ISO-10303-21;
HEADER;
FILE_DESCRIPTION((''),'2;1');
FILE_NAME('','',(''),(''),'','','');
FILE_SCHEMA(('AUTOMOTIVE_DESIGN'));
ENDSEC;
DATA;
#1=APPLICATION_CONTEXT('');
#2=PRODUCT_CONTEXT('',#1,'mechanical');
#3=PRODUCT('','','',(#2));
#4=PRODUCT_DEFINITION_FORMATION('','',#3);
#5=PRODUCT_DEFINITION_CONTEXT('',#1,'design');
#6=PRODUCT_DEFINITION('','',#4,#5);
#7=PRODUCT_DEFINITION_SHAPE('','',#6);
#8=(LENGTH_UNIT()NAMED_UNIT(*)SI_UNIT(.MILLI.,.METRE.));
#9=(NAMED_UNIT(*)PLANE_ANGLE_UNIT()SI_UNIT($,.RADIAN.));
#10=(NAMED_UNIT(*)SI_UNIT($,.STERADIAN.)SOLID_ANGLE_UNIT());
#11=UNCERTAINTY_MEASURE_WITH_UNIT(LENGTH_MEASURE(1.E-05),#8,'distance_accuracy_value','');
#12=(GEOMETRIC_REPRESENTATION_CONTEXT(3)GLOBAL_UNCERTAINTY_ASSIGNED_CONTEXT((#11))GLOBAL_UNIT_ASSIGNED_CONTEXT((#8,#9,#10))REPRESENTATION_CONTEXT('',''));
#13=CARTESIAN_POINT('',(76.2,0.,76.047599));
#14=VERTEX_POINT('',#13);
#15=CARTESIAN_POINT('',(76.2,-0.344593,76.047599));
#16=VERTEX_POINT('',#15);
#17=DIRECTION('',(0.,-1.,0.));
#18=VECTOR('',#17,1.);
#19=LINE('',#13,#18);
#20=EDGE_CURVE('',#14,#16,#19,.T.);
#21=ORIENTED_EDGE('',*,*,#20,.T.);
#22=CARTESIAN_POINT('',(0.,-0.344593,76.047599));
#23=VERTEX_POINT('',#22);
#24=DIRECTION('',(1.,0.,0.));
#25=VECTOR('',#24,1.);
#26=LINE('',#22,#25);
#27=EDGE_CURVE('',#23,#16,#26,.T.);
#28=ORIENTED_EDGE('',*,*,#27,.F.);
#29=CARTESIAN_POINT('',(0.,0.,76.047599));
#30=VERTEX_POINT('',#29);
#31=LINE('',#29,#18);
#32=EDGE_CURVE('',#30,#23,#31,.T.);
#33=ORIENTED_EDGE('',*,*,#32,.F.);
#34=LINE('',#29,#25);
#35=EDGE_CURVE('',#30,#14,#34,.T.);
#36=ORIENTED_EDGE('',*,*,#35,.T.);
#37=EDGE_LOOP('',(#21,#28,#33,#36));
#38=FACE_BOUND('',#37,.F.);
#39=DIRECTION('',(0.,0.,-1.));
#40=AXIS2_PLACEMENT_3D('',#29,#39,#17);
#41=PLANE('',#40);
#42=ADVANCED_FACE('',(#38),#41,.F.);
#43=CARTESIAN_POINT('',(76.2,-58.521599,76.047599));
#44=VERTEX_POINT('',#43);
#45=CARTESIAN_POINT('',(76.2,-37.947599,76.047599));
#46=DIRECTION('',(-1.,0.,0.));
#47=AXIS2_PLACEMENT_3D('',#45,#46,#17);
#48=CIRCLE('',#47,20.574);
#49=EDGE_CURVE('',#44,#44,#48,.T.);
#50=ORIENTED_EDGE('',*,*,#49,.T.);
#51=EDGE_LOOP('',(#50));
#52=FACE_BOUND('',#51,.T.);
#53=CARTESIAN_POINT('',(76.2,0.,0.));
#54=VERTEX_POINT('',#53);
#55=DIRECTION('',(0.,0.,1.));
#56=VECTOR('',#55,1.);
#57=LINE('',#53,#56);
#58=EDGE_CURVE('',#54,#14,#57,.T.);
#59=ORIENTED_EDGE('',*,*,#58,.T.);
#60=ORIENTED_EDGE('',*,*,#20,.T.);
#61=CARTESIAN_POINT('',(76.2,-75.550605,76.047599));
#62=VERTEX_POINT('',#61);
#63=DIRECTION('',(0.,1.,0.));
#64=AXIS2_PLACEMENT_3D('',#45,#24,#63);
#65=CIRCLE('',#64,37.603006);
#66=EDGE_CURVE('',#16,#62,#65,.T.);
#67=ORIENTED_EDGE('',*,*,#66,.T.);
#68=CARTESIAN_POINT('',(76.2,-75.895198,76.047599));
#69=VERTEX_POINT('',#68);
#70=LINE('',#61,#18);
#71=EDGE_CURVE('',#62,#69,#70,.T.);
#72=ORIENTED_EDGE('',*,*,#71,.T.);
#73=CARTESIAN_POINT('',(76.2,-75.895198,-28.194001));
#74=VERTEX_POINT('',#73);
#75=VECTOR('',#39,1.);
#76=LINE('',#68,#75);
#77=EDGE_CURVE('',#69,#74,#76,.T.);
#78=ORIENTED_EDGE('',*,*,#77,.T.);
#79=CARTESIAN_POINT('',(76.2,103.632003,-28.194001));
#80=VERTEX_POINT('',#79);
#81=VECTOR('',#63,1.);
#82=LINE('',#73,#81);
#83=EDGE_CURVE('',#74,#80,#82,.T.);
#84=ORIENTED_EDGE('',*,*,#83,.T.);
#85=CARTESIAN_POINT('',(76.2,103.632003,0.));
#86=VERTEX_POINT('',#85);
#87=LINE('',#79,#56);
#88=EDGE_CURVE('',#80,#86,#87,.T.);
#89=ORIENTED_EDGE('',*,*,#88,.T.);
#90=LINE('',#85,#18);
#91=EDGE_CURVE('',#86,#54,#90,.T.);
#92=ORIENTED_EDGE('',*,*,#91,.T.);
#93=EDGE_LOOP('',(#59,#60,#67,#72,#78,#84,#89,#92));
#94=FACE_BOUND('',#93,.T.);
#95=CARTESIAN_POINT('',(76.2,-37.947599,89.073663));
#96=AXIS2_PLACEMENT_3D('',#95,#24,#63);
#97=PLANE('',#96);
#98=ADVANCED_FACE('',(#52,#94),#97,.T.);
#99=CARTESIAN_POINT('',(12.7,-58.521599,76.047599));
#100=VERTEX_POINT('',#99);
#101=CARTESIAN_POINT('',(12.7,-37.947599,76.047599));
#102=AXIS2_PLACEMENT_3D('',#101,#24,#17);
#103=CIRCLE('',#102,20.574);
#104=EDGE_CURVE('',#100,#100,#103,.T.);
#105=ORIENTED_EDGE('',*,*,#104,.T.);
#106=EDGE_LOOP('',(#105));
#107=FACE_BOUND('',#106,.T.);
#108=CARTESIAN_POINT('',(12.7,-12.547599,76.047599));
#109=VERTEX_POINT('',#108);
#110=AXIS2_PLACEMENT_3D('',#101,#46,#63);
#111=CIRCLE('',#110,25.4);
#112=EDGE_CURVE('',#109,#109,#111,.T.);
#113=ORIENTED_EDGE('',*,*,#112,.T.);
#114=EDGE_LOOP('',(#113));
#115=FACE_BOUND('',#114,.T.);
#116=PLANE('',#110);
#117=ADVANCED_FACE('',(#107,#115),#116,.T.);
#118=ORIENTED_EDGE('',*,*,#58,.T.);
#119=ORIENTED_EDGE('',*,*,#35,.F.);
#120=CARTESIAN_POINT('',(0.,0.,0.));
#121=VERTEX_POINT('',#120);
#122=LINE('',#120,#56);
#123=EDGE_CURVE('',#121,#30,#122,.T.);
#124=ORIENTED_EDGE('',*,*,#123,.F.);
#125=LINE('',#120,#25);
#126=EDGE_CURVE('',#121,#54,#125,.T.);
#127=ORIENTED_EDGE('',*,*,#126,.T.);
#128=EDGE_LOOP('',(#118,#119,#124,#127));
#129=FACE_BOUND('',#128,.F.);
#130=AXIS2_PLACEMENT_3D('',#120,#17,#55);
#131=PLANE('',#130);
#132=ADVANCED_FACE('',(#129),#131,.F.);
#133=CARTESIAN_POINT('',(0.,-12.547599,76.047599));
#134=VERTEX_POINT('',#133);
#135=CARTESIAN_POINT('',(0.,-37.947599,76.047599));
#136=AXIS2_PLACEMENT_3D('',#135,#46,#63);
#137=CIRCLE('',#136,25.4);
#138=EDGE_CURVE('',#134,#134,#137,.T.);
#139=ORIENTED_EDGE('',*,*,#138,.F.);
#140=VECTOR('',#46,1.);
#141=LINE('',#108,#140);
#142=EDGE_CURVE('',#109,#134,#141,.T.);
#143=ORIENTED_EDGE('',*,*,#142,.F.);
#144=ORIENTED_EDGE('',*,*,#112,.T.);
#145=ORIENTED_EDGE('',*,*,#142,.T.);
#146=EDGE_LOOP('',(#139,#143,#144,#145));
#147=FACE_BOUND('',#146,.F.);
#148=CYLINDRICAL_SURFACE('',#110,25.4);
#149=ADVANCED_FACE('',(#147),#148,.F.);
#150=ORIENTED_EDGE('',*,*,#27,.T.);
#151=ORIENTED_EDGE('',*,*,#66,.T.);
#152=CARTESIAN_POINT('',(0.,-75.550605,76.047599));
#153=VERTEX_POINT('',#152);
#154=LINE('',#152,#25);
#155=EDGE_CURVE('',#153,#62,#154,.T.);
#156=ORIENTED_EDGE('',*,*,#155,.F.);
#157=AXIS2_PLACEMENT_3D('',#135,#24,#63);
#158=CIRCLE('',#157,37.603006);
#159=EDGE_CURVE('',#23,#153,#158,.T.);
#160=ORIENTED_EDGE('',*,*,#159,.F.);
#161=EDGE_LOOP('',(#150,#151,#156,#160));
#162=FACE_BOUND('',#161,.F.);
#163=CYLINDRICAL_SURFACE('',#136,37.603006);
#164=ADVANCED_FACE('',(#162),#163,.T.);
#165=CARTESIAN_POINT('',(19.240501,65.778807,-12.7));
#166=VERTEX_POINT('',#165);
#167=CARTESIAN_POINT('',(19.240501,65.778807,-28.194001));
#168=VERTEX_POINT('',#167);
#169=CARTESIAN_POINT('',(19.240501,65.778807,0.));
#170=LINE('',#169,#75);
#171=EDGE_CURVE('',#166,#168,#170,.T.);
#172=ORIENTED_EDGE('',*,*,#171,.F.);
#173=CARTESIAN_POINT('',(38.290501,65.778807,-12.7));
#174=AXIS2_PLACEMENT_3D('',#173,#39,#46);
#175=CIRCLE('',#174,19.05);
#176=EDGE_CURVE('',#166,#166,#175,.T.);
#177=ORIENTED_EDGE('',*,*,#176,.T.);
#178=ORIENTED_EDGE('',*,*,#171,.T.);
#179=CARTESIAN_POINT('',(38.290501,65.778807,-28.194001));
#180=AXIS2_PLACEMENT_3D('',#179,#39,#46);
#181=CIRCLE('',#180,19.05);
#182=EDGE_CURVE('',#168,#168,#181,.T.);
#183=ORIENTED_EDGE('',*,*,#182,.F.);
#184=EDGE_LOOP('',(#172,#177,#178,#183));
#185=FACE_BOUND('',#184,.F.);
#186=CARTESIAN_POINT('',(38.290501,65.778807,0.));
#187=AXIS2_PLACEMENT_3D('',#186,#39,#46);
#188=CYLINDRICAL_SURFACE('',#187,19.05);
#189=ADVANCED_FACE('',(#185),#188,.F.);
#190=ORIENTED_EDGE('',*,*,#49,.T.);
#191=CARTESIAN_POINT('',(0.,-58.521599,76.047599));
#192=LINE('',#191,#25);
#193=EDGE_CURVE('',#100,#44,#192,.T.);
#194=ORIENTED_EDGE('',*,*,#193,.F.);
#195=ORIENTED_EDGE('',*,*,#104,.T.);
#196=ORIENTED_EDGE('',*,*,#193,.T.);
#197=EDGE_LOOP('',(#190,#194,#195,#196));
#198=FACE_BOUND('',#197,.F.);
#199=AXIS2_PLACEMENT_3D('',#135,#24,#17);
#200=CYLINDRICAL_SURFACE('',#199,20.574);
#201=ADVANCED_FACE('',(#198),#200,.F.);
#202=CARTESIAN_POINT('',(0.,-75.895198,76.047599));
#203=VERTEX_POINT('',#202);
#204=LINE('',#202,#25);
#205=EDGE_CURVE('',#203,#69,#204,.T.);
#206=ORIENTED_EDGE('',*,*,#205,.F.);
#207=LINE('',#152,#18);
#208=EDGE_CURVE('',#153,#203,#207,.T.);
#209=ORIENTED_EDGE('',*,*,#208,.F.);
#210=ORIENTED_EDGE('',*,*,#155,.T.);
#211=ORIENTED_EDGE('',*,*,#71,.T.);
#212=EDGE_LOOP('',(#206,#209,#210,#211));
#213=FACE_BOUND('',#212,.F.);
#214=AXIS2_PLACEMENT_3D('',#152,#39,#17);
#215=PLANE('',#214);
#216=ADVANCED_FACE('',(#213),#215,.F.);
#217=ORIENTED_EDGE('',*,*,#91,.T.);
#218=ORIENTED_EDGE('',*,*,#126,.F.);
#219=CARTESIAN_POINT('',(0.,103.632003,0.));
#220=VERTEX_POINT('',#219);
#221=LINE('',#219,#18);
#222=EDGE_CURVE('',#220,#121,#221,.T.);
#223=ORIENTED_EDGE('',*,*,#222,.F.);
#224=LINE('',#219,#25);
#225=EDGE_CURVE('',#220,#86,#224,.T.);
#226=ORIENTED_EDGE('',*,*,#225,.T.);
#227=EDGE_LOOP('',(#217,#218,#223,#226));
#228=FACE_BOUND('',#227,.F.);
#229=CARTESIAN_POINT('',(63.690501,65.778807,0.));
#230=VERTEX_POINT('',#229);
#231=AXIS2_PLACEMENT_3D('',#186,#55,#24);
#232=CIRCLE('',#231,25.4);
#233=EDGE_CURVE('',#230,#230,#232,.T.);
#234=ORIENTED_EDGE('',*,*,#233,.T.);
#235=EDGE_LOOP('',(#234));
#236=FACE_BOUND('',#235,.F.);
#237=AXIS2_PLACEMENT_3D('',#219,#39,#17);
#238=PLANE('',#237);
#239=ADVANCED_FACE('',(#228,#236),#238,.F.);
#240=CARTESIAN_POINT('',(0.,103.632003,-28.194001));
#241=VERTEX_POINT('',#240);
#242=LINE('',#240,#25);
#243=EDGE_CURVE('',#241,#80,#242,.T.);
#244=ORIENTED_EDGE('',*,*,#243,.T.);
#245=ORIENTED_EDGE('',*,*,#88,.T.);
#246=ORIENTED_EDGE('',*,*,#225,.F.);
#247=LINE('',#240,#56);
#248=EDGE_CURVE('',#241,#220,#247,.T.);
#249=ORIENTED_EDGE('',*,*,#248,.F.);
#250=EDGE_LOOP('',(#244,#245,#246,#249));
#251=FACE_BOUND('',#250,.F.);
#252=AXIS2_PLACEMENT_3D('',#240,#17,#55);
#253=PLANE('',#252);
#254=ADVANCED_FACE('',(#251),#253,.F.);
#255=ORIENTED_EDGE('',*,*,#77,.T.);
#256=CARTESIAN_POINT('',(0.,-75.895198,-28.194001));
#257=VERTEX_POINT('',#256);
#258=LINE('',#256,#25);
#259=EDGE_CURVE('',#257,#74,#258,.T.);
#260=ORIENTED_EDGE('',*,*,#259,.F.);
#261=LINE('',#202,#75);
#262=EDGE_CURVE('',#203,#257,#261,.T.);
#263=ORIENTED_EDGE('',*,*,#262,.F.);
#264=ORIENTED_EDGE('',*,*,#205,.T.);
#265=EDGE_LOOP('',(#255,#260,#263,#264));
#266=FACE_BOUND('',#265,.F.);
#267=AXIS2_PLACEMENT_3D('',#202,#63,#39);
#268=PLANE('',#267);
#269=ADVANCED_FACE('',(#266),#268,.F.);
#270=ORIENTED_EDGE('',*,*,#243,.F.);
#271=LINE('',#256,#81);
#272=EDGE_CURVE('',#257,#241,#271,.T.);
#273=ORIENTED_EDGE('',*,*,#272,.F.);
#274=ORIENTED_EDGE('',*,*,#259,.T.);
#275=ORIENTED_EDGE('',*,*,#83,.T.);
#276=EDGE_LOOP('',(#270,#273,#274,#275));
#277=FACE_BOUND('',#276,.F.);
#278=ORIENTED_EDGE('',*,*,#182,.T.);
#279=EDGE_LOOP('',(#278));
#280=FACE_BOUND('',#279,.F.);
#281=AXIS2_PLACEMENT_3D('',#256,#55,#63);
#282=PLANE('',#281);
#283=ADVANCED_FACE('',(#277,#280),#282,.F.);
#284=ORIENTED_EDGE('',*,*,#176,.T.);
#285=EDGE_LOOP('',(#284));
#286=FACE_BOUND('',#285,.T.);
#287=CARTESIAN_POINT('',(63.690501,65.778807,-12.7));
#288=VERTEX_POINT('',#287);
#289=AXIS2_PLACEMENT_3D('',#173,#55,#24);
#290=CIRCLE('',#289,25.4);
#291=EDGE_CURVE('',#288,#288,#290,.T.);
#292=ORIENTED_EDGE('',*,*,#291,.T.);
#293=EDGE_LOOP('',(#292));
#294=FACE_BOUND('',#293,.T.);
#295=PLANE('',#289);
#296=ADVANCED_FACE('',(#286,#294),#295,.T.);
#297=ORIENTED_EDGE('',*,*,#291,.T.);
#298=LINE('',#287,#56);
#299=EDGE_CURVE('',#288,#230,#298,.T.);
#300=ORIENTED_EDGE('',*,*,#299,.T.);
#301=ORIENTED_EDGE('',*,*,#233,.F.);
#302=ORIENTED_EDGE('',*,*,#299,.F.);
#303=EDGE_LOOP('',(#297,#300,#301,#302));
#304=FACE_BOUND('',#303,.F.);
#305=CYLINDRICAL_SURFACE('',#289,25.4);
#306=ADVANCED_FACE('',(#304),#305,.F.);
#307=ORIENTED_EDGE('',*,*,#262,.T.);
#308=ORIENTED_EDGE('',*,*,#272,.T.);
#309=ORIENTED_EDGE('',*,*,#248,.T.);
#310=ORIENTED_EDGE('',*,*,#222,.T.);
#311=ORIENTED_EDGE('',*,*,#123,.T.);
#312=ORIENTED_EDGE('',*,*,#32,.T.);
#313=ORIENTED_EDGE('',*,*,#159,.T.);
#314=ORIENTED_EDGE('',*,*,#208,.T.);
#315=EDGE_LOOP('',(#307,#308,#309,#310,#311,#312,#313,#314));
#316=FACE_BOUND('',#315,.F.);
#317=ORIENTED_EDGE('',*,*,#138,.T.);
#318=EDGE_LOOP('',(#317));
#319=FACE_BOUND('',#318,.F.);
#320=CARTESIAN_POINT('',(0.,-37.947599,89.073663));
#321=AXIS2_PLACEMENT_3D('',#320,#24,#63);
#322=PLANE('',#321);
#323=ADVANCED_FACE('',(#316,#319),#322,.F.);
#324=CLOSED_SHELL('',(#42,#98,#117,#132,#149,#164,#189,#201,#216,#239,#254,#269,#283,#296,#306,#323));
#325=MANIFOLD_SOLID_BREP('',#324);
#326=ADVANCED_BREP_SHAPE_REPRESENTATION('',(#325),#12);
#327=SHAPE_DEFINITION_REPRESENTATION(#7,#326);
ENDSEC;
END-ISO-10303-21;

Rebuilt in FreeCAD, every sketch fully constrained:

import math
import FreeCAD as App
import Part
import Sketcher

V = App.Vector
Q = App.Units.Quantity

doc = App.newDocument("Part")
body = doc.addObject("PartDesign::Body", "Body")

# Sketch on YZ plane
sketch1 = body.newObject("Sketcher::SketchObject", "Sketch")
sketch1.AttachmentSupport = (doc.getObject("YZ_Plane"), [""])
sketch1.MapMode = "FlatFace"
sketch1.addGeometry([
    Part.ArcOfCircle(Part.Circle(V(-37.947599, 76.047599, 0), V(0, 0, 1), 37.603006), math.radians(0), math.radians(180)),  # 0
    Part.LineSegment(V(-75.550605, 76.047599, 0), V(-75.895198, 76.047599, 0)),  # 1
    Part.LineSegment(V(-75.895198, 76.047599, 0), V(-75.895198, -28.194001, 0)),  # 2
    Part.LineSegment(V(-75.895198, -28.194001, 0), V(103.632003, -28.194001, 0)),  # 3
    Part.LineSegment(V(103.632003, -28.194001, 0), V(103.632003, 0, 0)),  # 4
    Part.LineSegment(V(103.632003, 0, 0), V(0, 0, 0)),  # 5
    Part.LineSegment(V(0, 0, 0), V(0, 76.047599, 0)),  # 6
    Part.LineSegment(V(0, 76.047599, 0), V(-0.344593, 76.047599, 0)),  # 7
], False)
sketch1.addConstraint([
    Sketcher.Constraint("Coincident", 0, 2, 1, 1),
    Sketcher.Constraint("Coincident", 1, 2, 2, 1),
    Sketcher.Constraint("Coincident", 2, 2, 3, 1),
    Sketcher.Constraint("Coincident", 3, 2, 4, 1),
    Sketcher.Constraint("Coincident", 4, 2, 5, 1),
    Sketcher.Constraint("Coincident", 5, 2, 6, 1),
    Sketcher.Constraint("Coincident", 6, 2, 7, 1),
    Sketcher.Constraint("Coincident", 7, 2, 0, 1),
    Sketcher.Constraint("Horizontal", 1),
    Sketcher.Constraint("Vertical", 2),
    Sketcher.Constraint("Horizontal", 3),
    Sketcher.Constraint("Vertical", 4),
    Sketcher.Constraint("Horizontal", 5),
    Sketcher.Constraint("Vertical", 6),
    Sketcher.Constraint("Horizontal", 7),
    Sketcher.Constraint("Coincident", 5, 2, -1, 1),
    Sketcher.Constraint("Horizontal", 1, 2, 6, 2),
    Sketcher.Constraint("Equal", 1, 7),
    Sketcher.Constraint("DistanceX", 5, 2, 5, 1, Q("4.0800001 in")),
    Sketcher.Constraint("DistanceY", 4, 1, 4, 2, Q("1.11 in")),
    Sketcher.Constraint("DistanceX", 3, 1, 3, 2, Q("7.068 in")),
    Sketcher.Constraint("DistanceY", 2, 2, 2, 1, Q("4.104 in")),
    Sketcher.Constraint("DistanceY", -1, 1, 0, 3, Q("2.994 in")),
    Sketcher.Constraint("Radius", 0, Q("37.603006 mm")),
])
pad1 = body.newObject("PartDesign::Pad", "Pad")
pad1.Profile = sketch1
pad1.Length = Q("3 in")

# Sketch on XY plane
sketch2 = body.newObject("Sketcher::SketchObject", "Sketch001")
sketch2.AttachmentSupport = (doc.getObject("XY_Plane"), [""])
sketch2.MapMode = "FlatFace"
sketch2.addGeometry(Part.Circle(V(38.290501, 65.778807, 0), V(0, 0, 1), 19.05), False)
sketch2.addConstraint([
    Sketcher.Constraint("Diameter", 0, Q("1.5 in")),
    Sketcher.Constraint("DistanceX", -1, 1, 0, 3, Q("1.5075 in")),
    Sketcher.Constraint("DistanceY", -1, 1, 0, 3, Q("65.778807 mm")),
])
doc.recompute()
hole = body.newObject("PartDesign::Hole", "Hole")
hole.Profile = sketch2
hole.ThreadType = "None"
hole.Diameter = Q("1.5 in")
hole.DepthType = "Dimension"
hole.Depth = Q("1.5 in")
hole.DrillPoint = "Angled"
hole.DrillPointAngle = 118
hole.HoleCutType = "Counterbore"
hole.HoleCutDiameter = Q("2 in")
hole.HoleCutDepth = Q("0.5 in")

# Sketch on YZ plane
sketch3 = body.newObject("Sketcher::SketchObject", "Sketch002")
sketch3.AttachmentSupport = (doc.getObject("YZ_Plane"), [""])
sketch3.MapMode = "FlatFace"
sketch3.addGeometry(Part.Circle(V(-37.947599, 76.047599, 0), V(0, 0, 1), 20.574), False)
sketch3.addConstraint([
    Sketcher.Constraint("Diameter", 0, Q("1.62 in")),
    Sketcher.Constraint("DistanceX", 0, 3, -1, 1, Q("1.494 in")),
    Sketcher.Constraint("DistanceY", -1, 1, 0, 3, Q("2.994 in")),
])
doc.recompute()
hole2 = body.newObject("PartDesign::Hole", "Hole001")
hole2.Profile = sketch3
hole2.ThreadType = "None"
hole2.Diameter = Q("1.62 in")
hole2.DepthType = "Dimension"
hole2.Depth = Q("3 in")
hole2.DrillPoint = "Angled"
hole2.DrillPointAngle = 118
hole2.HoleCutType = "Counterbore"
hole2.HoleCutDiameter = Q("2 in")
hole2.HoleCutDepth = Q("0.5 in")
hole2.Reversed = True

doc.recompute()
